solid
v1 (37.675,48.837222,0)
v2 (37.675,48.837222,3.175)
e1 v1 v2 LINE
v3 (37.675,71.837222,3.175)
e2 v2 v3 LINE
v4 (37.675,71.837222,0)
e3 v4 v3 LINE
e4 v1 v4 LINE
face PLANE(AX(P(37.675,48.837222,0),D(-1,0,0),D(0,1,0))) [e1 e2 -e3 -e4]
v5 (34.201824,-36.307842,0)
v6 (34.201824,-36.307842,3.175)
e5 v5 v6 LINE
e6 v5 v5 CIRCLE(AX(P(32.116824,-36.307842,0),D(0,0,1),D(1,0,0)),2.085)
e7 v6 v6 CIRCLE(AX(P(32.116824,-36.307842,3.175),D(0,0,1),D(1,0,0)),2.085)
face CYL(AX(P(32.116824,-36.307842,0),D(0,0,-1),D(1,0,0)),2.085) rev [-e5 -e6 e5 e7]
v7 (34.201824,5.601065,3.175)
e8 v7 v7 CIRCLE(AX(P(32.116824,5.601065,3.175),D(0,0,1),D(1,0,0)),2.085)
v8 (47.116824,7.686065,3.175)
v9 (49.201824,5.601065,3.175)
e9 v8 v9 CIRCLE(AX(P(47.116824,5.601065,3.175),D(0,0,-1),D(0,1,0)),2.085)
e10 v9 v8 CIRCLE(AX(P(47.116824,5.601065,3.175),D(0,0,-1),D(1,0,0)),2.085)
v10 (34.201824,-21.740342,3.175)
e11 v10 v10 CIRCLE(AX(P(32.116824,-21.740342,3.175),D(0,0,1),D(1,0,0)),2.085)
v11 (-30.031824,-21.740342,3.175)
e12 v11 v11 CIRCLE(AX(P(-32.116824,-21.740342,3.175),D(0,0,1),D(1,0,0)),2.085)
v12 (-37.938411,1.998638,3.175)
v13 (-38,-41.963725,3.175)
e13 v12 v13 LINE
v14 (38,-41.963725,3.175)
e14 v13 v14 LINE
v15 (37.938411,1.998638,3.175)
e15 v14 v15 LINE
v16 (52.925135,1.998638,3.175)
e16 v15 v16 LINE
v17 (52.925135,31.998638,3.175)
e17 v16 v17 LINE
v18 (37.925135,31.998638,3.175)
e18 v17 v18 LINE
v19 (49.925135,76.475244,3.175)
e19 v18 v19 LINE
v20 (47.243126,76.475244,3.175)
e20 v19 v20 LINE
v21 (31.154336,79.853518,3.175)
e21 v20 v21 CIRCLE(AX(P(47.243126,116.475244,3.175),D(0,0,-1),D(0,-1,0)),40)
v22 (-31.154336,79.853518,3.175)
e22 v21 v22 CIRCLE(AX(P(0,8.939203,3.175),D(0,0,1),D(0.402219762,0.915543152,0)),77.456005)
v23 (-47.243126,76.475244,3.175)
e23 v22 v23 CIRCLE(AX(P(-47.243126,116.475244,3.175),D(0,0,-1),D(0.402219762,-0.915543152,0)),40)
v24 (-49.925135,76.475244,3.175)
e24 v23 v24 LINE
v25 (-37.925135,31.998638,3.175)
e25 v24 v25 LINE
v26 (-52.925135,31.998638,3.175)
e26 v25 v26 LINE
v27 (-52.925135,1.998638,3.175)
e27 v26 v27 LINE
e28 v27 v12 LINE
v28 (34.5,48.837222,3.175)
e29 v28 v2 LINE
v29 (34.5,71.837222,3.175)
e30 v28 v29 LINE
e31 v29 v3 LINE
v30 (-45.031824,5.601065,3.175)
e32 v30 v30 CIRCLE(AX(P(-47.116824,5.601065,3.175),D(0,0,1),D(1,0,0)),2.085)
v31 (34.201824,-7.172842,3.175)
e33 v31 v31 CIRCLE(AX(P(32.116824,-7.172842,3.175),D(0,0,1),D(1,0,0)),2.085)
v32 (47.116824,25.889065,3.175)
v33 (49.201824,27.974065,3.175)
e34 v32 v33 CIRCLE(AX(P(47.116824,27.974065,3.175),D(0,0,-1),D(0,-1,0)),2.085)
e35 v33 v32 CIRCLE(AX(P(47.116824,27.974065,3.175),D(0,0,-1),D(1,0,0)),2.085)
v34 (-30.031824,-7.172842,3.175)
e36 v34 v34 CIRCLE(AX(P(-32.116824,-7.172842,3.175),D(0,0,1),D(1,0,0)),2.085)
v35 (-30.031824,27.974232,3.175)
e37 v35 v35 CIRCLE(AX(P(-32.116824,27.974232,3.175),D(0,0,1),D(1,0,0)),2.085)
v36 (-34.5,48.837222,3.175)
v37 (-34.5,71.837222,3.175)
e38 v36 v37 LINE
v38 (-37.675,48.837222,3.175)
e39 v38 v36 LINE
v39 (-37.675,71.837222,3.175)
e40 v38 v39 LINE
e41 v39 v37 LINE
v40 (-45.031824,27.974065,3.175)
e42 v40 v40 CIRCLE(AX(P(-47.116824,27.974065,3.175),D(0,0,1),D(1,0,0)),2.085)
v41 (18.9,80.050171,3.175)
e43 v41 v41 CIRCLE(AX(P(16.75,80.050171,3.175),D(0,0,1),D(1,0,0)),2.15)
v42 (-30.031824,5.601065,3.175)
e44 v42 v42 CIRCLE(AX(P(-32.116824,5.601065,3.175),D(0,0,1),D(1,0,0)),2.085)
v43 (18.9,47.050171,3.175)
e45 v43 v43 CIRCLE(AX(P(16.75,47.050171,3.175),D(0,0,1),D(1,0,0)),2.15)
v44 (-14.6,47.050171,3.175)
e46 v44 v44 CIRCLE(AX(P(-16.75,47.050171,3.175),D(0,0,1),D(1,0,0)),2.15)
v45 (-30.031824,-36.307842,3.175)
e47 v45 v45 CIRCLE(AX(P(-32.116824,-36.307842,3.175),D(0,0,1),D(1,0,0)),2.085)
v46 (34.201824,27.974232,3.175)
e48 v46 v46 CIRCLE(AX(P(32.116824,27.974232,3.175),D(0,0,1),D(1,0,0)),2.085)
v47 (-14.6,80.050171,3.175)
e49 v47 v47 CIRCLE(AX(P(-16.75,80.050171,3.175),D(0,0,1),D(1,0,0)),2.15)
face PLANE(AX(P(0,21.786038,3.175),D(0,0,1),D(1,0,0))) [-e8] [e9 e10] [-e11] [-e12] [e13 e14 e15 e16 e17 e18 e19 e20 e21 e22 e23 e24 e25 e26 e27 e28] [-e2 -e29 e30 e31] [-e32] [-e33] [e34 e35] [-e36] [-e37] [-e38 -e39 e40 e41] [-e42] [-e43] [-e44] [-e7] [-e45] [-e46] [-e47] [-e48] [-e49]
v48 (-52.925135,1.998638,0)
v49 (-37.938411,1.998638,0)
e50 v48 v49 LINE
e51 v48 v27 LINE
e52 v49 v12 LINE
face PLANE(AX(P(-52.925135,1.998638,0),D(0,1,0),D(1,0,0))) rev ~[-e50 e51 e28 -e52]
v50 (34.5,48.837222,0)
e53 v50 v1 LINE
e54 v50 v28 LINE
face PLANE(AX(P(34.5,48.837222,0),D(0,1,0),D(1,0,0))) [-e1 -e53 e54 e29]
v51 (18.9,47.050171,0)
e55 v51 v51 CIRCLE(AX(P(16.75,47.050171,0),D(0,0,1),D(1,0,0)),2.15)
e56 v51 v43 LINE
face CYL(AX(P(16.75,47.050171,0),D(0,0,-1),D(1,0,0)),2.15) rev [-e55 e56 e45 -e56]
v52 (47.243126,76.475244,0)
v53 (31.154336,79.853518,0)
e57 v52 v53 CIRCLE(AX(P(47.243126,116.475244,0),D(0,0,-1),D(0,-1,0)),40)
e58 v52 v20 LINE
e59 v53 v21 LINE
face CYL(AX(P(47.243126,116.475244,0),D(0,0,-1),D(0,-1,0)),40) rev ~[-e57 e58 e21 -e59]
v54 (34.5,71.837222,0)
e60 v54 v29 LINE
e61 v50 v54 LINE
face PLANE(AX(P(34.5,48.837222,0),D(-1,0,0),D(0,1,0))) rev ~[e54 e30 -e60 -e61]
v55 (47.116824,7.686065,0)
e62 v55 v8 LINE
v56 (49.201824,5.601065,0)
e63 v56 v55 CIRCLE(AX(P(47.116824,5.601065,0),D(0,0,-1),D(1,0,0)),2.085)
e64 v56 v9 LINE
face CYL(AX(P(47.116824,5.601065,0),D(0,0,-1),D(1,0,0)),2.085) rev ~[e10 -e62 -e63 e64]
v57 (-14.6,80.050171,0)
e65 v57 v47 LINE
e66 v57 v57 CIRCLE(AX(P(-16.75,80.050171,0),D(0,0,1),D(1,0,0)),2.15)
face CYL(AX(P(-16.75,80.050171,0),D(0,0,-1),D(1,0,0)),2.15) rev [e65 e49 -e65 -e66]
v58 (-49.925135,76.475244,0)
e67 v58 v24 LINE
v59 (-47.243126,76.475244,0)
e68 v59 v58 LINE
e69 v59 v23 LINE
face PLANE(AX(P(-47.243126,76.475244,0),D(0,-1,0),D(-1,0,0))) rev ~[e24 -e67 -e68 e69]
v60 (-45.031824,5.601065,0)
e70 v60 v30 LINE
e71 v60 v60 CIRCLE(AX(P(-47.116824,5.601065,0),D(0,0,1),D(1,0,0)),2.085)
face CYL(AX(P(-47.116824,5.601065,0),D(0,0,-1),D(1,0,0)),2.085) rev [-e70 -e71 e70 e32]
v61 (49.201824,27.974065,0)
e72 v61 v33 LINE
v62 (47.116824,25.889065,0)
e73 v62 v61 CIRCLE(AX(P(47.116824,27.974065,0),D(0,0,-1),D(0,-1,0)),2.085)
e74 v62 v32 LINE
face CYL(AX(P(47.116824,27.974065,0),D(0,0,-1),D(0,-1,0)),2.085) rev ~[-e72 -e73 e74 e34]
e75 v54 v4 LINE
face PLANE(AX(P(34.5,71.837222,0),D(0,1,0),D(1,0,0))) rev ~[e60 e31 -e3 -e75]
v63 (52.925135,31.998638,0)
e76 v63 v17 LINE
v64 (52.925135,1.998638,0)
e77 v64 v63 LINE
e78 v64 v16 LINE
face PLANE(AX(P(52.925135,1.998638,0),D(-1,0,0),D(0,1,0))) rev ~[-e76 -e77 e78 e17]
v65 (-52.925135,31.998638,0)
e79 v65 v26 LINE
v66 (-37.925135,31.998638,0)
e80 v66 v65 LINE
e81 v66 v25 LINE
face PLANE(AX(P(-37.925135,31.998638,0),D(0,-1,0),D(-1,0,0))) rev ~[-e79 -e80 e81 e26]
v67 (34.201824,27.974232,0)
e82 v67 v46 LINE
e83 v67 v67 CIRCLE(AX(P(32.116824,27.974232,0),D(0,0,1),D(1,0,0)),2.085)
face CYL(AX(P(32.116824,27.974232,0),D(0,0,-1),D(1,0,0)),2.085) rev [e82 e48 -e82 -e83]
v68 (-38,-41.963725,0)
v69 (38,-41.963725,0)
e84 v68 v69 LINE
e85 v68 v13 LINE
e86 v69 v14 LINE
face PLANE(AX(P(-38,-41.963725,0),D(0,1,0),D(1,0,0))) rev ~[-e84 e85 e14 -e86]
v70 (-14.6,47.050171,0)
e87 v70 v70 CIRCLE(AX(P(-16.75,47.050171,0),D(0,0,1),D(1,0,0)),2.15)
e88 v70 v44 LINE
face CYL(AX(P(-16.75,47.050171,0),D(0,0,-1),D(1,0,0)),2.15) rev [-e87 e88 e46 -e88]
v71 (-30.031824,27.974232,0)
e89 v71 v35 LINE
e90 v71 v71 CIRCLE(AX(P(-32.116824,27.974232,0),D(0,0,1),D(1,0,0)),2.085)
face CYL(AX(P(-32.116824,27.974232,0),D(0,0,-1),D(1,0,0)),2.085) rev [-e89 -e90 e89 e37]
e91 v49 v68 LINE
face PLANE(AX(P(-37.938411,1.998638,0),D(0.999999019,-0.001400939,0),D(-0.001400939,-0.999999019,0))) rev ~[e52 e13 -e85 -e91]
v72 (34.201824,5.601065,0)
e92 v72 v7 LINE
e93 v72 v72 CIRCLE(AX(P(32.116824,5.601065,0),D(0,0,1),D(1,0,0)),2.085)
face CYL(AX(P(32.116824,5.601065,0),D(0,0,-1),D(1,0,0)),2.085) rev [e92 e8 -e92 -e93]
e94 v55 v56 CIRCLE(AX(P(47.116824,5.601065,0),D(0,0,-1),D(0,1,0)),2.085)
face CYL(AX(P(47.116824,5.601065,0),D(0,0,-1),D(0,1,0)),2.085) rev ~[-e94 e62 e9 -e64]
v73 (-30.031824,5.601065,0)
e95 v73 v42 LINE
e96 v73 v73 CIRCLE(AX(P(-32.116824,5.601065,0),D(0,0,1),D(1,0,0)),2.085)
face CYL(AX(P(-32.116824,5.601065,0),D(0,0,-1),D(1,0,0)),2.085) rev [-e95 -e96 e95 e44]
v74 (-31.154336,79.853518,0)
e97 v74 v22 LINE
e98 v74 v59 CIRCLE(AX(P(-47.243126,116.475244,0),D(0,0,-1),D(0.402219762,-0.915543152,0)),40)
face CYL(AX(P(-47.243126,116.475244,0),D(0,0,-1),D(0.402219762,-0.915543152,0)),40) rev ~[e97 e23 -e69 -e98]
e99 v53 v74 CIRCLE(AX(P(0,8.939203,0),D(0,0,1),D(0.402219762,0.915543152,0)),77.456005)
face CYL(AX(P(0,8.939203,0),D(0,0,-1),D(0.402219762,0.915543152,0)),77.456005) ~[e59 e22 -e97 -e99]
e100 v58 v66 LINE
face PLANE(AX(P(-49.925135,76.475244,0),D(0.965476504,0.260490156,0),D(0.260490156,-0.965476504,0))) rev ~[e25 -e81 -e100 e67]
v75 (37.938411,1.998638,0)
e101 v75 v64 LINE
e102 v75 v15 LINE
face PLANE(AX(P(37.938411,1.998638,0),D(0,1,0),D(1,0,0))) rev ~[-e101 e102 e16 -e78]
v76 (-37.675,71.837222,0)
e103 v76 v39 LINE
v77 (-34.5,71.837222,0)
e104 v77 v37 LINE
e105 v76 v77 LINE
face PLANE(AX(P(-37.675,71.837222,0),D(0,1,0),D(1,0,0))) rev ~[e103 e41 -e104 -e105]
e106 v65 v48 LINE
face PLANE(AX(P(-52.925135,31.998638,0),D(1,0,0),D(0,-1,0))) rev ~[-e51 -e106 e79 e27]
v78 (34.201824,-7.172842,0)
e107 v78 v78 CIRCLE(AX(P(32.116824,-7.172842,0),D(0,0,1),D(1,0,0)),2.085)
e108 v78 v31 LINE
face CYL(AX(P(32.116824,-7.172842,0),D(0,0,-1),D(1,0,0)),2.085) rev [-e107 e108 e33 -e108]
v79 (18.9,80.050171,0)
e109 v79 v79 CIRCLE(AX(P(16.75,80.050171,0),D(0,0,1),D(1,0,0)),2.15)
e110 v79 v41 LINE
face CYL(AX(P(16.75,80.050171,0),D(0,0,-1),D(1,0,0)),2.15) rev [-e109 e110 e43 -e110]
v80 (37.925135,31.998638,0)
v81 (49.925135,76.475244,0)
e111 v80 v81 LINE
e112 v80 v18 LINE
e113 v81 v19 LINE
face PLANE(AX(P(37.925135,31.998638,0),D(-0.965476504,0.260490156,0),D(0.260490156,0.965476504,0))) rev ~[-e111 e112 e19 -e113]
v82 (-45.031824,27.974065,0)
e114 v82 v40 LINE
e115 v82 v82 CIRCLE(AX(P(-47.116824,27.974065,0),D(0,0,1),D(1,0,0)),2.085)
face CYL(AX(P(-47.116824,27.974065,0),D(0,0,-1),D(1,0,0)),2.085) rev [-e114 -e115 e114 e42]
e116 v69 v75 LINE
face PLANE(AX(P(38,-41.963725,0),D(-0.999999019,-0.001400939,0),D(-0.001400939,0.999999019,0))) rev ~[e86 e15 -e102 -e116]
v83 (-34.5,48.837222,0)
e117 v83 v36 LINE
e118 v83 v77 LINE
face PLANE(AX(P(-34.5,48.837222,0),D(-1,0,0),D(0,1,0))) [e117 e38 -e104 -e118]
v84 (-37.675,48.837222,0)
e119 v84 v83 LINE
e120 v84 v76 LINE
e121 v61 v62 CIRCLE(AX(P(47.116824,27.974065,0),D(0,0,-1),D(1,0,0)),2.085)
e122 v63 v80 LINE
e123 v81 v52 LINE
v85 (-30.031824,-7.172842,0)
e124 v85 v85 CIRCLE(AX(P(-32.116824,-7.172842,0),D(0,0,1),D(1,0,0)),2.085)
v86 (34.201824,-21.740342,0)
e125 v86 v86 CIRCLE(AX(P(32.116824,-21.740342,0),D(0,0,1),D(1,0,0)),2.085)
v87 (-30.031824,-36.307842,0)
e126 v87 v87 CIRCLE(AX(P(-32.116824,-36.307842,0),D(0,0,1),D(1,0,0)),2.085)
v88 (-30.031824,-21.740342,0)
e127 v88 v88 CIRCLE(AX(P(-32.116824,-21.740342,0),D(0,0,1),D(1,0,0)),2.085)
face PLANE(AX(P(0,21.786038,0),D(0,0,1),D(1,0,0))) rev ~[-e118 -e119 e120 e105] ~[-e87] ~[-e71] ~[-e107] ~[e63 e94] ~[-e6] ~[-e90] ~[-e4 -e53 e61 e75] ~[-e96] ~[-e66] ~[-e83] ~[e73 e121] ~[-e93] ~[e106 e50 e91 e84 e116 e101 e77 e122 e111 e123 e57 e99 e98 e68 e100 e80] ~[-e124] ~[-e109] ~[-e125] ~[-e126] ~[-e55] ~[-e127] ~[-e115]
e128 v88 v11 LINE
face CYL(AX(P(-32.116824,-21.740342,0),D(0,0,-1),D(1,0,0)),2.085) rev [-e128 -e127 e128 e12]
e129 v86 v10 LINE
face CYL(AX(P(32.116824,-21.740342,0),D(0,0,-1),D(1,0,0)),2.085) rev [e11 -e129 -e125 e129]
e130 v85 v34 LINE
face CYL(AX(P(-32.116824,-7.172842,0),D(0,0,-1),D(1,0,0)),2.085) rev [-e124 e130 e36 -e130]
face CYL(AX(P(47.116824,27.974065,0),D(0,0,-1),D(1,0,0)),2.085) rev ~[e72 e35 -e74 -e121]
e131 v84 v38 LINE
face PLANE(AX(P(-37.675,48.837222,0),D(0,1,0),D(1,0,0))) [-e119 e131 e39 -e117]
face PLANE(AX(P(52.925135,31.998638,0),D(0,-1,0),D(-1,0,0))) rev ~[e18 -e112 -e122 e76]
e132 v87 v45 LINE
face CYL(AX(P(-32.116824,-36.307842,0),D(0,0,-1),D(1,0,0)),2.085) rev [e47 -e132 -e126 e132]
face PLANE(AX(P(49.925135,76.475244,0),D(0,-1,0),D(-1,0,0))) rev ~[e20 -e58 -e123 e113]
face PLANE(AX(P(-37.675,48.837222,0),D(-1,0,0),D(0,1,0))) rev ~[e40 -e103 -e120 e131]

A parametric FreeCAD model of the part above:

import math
import FreeCAD as App
import Part
import Sketcher
from FreeCAD import Vector

doc = App.newDocument("Part")
body = doc.addObject("PartDesign::Body", "Body")

# Sketch on XY plane
sketch1 = body.newObject("Sketcher::SketchObject", "Sketch")
sketch1.AttachmentSupport = (doc.getObject("XY_Plane"), [""])
sketch1.MapMode = "FlatFace"
sketch1.addGeometry([
    Part.LineSegment(Vector(-38, -42, 0), Vector(38, -42, 0)),  # 0
    Part.LineSegment(Vector(38, -42, 0), Vector(37.9, 2, 0)),  # 1
    Part.LineSegment(Vector(37.9, 2, 0), Vector(52.9, 2, 0)),  # 2
    Part.LineSegment(Vector(52.9, 2, 0), Vector(52.9, 32, 0)),  # 3
    Part.LineSegment(Vector(52.9, 32, 0), Vector(37.9, 32, 0)),  # 4
    Part.LineSegment(Vector(37.9, 32, 0), Vector(49.9, 76.5, 0)),  # 5
    Part.LineSegment(Vector(49.9, 76.5, 0), Vector(47.2, 76.5, 0)),  # 6
    Part.ArcOfCircle(Part.Circle(Vector(47.2, 116.5, 0), Vector(0, 0, 1), 40), math.radians(-114), math.radians(-90)),  # 7
    Part.ArcOfCircle(Part.Circle(Vector(0, 8.9, 0), Vector(0, 0, 1), 77.5), math.radians(66), math.radians(114)),  # 8
    Part.ArcOfCircle(Part.Circle(Vector(-47.2, 116.5, 0), Vector(0, 0, 1), 40), math.radians(-90), math.radians(-66)),  # 9
    Part.LineSegment(Vector(-47.2, 76.5, 0), Vector(-49.9, 76.5, 0)),  # 10
    Part.LineSegment(Vector(-49.9, 76.5, 0), Vector(-37.9, 32, 0)),  # 11
    Part.LineSegment(Vector(-37.9, 32, 0), Vector(-52.9, 32, 0)),  # 12
    Part.LineSegment(Vector(-52.9, 32, 0), Vector(-52.9, 2, 0)),  # 13
    Part.LineSegment(Vector(-52.9, 2, 0), Vector(-37.9, 2, 0)),  # 14
    Part.LineSegment(Vector(-37.9, 2, 0), Vector(-38, -42, 0)),  # 15
    Part.Circle(Vector(-32.1, -36.3, 0), Vector(0, 0, 1), 2.1),  # 16
    Part.Circle(Vector(-32.1, -21.7, 0), Vector(0, 0, 1), 2.1),  # 17
    Part.Circle(Vector(-47.1, 5.6, 0), Vector(0, 0, 1), 2.1),  # 18
    Part.Circle(Vector(-32.1, -7.2, 0), Vector(0, 0, 1), 2.1),  # 19
    Part.Circle(Vector(-32.1, 5.6, 0), Vector(0, 0, 1), 2.1),  # 20
    Part.Circle(Vector(32.1, -36.3, 0), Vector(0, 0, 1), 2.1),  # 21
    Part.Circle(Vector(32.1, -21.7, 0), Vector(0, 0, 1), 2.1),  # 22
    Part.Circle(Vector(32.1, -7.2, 0), Vector(0, 0, 1), 2.1),  # 23
    Part.Circle(Vector(32.1, 5.6, 0), Vector(0, 0, 1), 2.1),  # 24
    Part.ArcOfCircle(Part.Circle(Vector(47.1, 5.6, 0), Vector(0, 0, 1), 2.1), math.radians(0), math.radians(90)),  # 25
    Part.ArcOfCircle(Part.Circle(Vector(47.1, 5.6, 0), Vector(0, 0, 1), 2.1), math.radians(90), math.radians(360)),  # 26
    Part.Circle(Vector(-47.1, 28, 0), Vector(0, 0, 1), 2.1),  # 27
    Part.Circle(Vector(-32.1, 28, 0), Vector(0, 0, 1), 2.1),  # 28
    Part.Circle(Vector(-16.8, 47.1, 0), Vector(0, 0, 1), 2.1),  # 29
    Part.LineSegment(Vector(-34.5, 48.8, 0), Vector(-37.7, 48.8, 0)),  # 30
    Part.LineSegment(Vector(-37.7, 48.8, 0), Vector(-37.7, 71.8, 0)),  # 31
    Part.LineSegment(Vector(-37.7, 71.8, 0), Vector(-34.5, 71.8, 0)),  # 32
    Part.LineSegment(Vector(-34.5, 71.8, 0), Vector(-34.5, 48.8, 0)),  # 33
    Part.Circle(Vector(-16.8, 80.1, 0), Vector(0, 0, 1), 2.1),  # 34
    Part.Circle(Vector(16.8, 47.1, 0), Vector(0, 0, 1), 2.1),  # 35
    Part.Circle(Vector(32.1, 28, 0), Vector(0, 0, 1), 2.1),  # 36
    Part.ArcOfCircle(Part.Circle(Vector(47.1, 28, 0), Vector(0, 0, 1), 2.1), math.radians(-90), math.radians(0)),  # 37
    Part.ArcOfCircle(Part.Circle(Vector(47.1, 28, 0), Vector(0, 0, 1), 2.1), math.radians(0), math.radians(270)),  # 38
    Part.Circle(Vector(16.8, 80.1, 0), Vector(0, 0, 1), 2.1),  # 39
    Part.LineSegment(Vector(37.7, 48.8, 0), Vector(34.5, 48.8, 0)),  # 40
    Part.LineSegment(Vector(34.5, 48.8, 0), Vector(34.5, 71.8, 0)),  # 41
    Part.LineSegment(Vector(34.5, 71.8, 0), Vector(37.7, 71.8, 0)),  # 42
    Part.LineSegment(Vector(37.7, 71.8, 0), Vector(37.7, 48.8, 0)),  # 43
], False)
sketch1.addConstraint([
    Sketcher.Constraint("Coincident", 0, 2, 1, 1),
    Sketcher.Constraint("Coincident", 1, 2, 2, 1),
    Sketcher.Constraint("Coincident", 2, 2, 3, 1),
    Sketcher.Constraint("Coincident", 3, 2, 4, 1),
    Sketcher.Constraint("Coincident", 4, 2, 5, 1),
    Sketcher.Constraint("Coincident", 5, 2, 6, 1),
    Sketcher.Constraint("Tangent", 6, 2, 7, 2),
    Sketcher.Constraint("Tangent", 7, 1, 8, 1),
    Sketcher.Constraint("Tangent", 8, 2, 9, 2),
    Sketcher.Constraint("Tangent", 9, 1, 10, 1),
    Sketcher.Constraint("Coincident", 10, 2, 11, 1),
    Sketcher.Constraint("Coincident", 11, 2, 12, 1),
    Sketcher.Constraint("Coincident", 12, 2, 13, 1),
    Sketcher.Constraint("Coincident", 13, 2, 14, 1),
    Sketcher.Constraint("Coincident", 14, 2, 15, 1),
    Sketcher.Constraint("Coincident", 15, 2, 0, 1),
    Sketcher.Constraint("Tangent", 25, 1, 26, 2),
    Sketcher.Constraint("Coincident", 26, 1, 25, 2),
    Sketcher.Constraint("Coincident", 30, 2, 31, 1),
    Sketcher.Constraint("Coincident", 31, 2, 32, 1),
    Sketcher.Constraint("Coincident", 32, 2, 33, 1),
    Sketcher.Constraint("Coincident", 33, 2, 30, 1),
    Sketcher.Constraint("Tangent", 37, 1, 38, 2),
    Sketcher.Constraint("Coincident", 38, 1, 37, 2),
    Sketcher.Constraint("Coincident", 40, 2, 41, 1),
    Sketcher.Constraint("Coincident", 41, 2, 42, 1),
    Sketcher.Constraint("Coincident", 42, 2, 43, 1),
    Sketcher.Constraint("Coincident", 43, 2, 40, 1),
    Sketcher.Constraint("Horizontal", 0),
    Sketcher.Constraint("Horizontal", 2),
    Sketcher.Constraint("Vertical", 3),
    Sketcher.Constraint("Horizontal", 4),
    Sketcher.Constraint("Horizontal", 6),
    Sketcher.Constraint("Horizontal", 10),
    Sketcher.Constraint("Horizontal", 12),
    Sketcher.Constraint("Vertical", 13),
    Sketcher.Constraint("Horizontal", 14),
    Sketcher.Constraint("Horizontal", 30),
    Sketcher.Constraint("Vertical", 31),
    Sketcher.Constraint("Horizontal", 32),
    Sketcher.Constraint("Vertical", 33),
    Sketcher.Constraint("Horizontal", 40),
    Sketcher.Constraint("Vertical", 41),
    Sketcher.Constraint("Horizontal", 42),
    Sketcher.Constraint("Vertical", 43),
    Sketcher.Constraint("Equal", 7, 9),
    Sketcher.Constraint("Equal", 16, 17),
    Sketcher.Constraint("Equal", 17, 18),
    Sketcher.Constraint("Equal", 18, 19),
    Sketcher.Constraint("Equal", 19, 20),
    Sketcher.Constraint("Equal", 20, 21),
    Sketcher.Constraint("Equal", 21, 22),
    Sketcher.Constraint("Equal", 22, 23),
    Sketcher.Constraint("Equal", 23, 24),
    Sketcher.Constraint("Equal", 24, 25),
    Sketcher.Constraint("Equal", 26, 27),
    Sketcher.Constraint("Equal", 27, 28),
    Sketcher.Constraint("Equal", 29, 34),
    Sketcher.Constraint("Equal", 34, 35),
    Sketcher.Constraint("Equal", 28, 36),
    Sketcher.Constraint("Equal", 36, 37),
    Sketcher.Constraint("Equal", 35, 39),
    Sketcher.Constraint("Symmetric", 7, 3, 9, 3, -2),
    Sketcher.Constraint("Symmetric", 16, 3, 21, 3, -2),
    Sketcher.Constraint("Symmetric", 17, 3, 22, 3, -2),
    Sketcher.Constraint("Symmetric", 19, 3, 23, 3, -2),
    Sketcher.Constraint("Symmetric", 20, 3, 24, 3, -2),
    Sketcher.Constraint("Symmetric", 18, 3, 25, 3, -2),
    Sketcher.Constraint("Symmetric", 29, 3, 35, 3, -2),
    Sketcher.Constraint("Symmetric", 28, 3, 36, 3, -2),
    Sketcher.Constraint("Symmetric", 27, 3, 37, 3, -2),
    Sketcher.Constraint("Symmetric", 34, 3, 39, 3, -2),
    Sketcher.Constraint("Symmetric", 4, 2, 11, 2, -2),
    Sketcher.Constraint("Symmetric", 2, 2, 13, 2, -2),
    Sketcher.Constraint("Symmetric", 33, 2, 40, 2, -2),
    Sketcher.Constraint("Symmetric", 31, 2, 42, 2, -2),
    Sketcher.Constraint("Horizontal", 18, 3, 20, 3),
    Sketcher.Constraint("Horizontal", 26, 3, 25, 1),
    Sketcher.Constraint("Horizontal", 37, 3, 38, 1),
    Sketcher.Constraint("Vertical", 16, 3, 17, 3),
    Sketcher.Constraint("Vertical", 17, 3, 19, 3),
    Sketcher.Constraint("Vertical", 19, 3, 20, 3),
    Sketcher.Constraint("Vertical", 18, 3, 27, 3),
    Sketcher.Constraint("Vertical", 20, 3, 28, 3),
    Sketcher.Constraint("Vertical", 29, 3, 34, 3),
    Sketcher.Constraint("Vertical", 38, 3, 26, 1),
    Sketcher.Constraint("Vertical", 26, 1, 37, 1),
    Sketcher.Constraint("Equal", 6, 10),
    Sketcher.Constraint("Equal", 2, 14),
    Sketcher.Constraint("Radius", 7, 40.0),
    Sketcher.Constraint("Diameter", 29, 4.3),
    Sketcher.Constraint("Diameter", 16, 4.17),
    Sketcher.Constraint("DistanceX", 0, 1, 0, 2, 76.0),
    Sketcher.Constraint("DistanceX", 4, 2, 4, 1, 15.0),
    Sketcher.Constraint("DistanceY", 3, 1, 3, 2, 30.0),
    Sketcher.Constraint("DistanceY", 31, 1, 31, 2, 23.0),
    Sketcher.Constraint("DistanceX", -1, 1, 0, 2, 38.0),
    Sketcher.Constraint("DistanceX", 18, 3, 17, 3, 15.0),
    Sketcher.Constraint("DistanceY", 29, 3, 34, 3, 33.0),
    Sketcher.Constraint("DistanceX", 5, 2, 3, 2, 3.0),
    Sketcher.Constraint("DistanceX", 32, 2, -1, 1, 34.5),
    Sketcher.Constraint("DistanceX", 29, 3, 35, 3, 33.5),
    Sketcher.Constraint("DistanceX", 30, 2, 30, 1, 3.175),
    Sketcher.Constraint("Distance", 5, 46.067),
    Sketcher.Constraint("Radius", 8, 77.456005),
    Sketcher.Constraint("DistanceY", 16, 3, 19, 3, 29.135),
    Sketcher.Constraint("DistanceY", 18, 3, 27, 3, 22.373),
    Sketcher.Constraint("DistanceX", 6, 2, 6, 1, 2.682009),
    Sketcher.Constraint("DistanceY", 16, 3, 17, 3, 14.5675),
    Sketcher.Constraint("DistanceX", 7, 1, 5, 2, 18.770799),
    Sketcher.Constraint("DistanceX", 2, 1, 2, 2, 14.986724),
    Sketcher.Constraint("DistanceY", 16, 3, -1, 1, 36.307842),
    Sketcher.Constraint("DistanceY", -1, 1, 29, 3, 47.050171),
    Sketcher.Constraint("DistanceY", -1, 1, 1, 2, 1.998638),
    Sketcher.Constraint("DistanceX", 16, 3, 7, 3, 79.35995),
    Sketcher.Constraint("DistanceY", 18, 3, 9, 3, 110.874179),
    Sketcher.Constraint("DistanceY", 8, 3, 28, 3, 19.03503),
    Sketcher.Constraint("DistanceY", 0, 2, 24, 3, 47.56479),
    Sketcher.Constraint("DistanceY", 29, 3, 30, 2, 1.787052),
])
pad1 = body.newObject("PartDesign::Pad", "Pad")
pad1.Profile = sketch1
pad1.Length = 3.175

doc.recompute()
